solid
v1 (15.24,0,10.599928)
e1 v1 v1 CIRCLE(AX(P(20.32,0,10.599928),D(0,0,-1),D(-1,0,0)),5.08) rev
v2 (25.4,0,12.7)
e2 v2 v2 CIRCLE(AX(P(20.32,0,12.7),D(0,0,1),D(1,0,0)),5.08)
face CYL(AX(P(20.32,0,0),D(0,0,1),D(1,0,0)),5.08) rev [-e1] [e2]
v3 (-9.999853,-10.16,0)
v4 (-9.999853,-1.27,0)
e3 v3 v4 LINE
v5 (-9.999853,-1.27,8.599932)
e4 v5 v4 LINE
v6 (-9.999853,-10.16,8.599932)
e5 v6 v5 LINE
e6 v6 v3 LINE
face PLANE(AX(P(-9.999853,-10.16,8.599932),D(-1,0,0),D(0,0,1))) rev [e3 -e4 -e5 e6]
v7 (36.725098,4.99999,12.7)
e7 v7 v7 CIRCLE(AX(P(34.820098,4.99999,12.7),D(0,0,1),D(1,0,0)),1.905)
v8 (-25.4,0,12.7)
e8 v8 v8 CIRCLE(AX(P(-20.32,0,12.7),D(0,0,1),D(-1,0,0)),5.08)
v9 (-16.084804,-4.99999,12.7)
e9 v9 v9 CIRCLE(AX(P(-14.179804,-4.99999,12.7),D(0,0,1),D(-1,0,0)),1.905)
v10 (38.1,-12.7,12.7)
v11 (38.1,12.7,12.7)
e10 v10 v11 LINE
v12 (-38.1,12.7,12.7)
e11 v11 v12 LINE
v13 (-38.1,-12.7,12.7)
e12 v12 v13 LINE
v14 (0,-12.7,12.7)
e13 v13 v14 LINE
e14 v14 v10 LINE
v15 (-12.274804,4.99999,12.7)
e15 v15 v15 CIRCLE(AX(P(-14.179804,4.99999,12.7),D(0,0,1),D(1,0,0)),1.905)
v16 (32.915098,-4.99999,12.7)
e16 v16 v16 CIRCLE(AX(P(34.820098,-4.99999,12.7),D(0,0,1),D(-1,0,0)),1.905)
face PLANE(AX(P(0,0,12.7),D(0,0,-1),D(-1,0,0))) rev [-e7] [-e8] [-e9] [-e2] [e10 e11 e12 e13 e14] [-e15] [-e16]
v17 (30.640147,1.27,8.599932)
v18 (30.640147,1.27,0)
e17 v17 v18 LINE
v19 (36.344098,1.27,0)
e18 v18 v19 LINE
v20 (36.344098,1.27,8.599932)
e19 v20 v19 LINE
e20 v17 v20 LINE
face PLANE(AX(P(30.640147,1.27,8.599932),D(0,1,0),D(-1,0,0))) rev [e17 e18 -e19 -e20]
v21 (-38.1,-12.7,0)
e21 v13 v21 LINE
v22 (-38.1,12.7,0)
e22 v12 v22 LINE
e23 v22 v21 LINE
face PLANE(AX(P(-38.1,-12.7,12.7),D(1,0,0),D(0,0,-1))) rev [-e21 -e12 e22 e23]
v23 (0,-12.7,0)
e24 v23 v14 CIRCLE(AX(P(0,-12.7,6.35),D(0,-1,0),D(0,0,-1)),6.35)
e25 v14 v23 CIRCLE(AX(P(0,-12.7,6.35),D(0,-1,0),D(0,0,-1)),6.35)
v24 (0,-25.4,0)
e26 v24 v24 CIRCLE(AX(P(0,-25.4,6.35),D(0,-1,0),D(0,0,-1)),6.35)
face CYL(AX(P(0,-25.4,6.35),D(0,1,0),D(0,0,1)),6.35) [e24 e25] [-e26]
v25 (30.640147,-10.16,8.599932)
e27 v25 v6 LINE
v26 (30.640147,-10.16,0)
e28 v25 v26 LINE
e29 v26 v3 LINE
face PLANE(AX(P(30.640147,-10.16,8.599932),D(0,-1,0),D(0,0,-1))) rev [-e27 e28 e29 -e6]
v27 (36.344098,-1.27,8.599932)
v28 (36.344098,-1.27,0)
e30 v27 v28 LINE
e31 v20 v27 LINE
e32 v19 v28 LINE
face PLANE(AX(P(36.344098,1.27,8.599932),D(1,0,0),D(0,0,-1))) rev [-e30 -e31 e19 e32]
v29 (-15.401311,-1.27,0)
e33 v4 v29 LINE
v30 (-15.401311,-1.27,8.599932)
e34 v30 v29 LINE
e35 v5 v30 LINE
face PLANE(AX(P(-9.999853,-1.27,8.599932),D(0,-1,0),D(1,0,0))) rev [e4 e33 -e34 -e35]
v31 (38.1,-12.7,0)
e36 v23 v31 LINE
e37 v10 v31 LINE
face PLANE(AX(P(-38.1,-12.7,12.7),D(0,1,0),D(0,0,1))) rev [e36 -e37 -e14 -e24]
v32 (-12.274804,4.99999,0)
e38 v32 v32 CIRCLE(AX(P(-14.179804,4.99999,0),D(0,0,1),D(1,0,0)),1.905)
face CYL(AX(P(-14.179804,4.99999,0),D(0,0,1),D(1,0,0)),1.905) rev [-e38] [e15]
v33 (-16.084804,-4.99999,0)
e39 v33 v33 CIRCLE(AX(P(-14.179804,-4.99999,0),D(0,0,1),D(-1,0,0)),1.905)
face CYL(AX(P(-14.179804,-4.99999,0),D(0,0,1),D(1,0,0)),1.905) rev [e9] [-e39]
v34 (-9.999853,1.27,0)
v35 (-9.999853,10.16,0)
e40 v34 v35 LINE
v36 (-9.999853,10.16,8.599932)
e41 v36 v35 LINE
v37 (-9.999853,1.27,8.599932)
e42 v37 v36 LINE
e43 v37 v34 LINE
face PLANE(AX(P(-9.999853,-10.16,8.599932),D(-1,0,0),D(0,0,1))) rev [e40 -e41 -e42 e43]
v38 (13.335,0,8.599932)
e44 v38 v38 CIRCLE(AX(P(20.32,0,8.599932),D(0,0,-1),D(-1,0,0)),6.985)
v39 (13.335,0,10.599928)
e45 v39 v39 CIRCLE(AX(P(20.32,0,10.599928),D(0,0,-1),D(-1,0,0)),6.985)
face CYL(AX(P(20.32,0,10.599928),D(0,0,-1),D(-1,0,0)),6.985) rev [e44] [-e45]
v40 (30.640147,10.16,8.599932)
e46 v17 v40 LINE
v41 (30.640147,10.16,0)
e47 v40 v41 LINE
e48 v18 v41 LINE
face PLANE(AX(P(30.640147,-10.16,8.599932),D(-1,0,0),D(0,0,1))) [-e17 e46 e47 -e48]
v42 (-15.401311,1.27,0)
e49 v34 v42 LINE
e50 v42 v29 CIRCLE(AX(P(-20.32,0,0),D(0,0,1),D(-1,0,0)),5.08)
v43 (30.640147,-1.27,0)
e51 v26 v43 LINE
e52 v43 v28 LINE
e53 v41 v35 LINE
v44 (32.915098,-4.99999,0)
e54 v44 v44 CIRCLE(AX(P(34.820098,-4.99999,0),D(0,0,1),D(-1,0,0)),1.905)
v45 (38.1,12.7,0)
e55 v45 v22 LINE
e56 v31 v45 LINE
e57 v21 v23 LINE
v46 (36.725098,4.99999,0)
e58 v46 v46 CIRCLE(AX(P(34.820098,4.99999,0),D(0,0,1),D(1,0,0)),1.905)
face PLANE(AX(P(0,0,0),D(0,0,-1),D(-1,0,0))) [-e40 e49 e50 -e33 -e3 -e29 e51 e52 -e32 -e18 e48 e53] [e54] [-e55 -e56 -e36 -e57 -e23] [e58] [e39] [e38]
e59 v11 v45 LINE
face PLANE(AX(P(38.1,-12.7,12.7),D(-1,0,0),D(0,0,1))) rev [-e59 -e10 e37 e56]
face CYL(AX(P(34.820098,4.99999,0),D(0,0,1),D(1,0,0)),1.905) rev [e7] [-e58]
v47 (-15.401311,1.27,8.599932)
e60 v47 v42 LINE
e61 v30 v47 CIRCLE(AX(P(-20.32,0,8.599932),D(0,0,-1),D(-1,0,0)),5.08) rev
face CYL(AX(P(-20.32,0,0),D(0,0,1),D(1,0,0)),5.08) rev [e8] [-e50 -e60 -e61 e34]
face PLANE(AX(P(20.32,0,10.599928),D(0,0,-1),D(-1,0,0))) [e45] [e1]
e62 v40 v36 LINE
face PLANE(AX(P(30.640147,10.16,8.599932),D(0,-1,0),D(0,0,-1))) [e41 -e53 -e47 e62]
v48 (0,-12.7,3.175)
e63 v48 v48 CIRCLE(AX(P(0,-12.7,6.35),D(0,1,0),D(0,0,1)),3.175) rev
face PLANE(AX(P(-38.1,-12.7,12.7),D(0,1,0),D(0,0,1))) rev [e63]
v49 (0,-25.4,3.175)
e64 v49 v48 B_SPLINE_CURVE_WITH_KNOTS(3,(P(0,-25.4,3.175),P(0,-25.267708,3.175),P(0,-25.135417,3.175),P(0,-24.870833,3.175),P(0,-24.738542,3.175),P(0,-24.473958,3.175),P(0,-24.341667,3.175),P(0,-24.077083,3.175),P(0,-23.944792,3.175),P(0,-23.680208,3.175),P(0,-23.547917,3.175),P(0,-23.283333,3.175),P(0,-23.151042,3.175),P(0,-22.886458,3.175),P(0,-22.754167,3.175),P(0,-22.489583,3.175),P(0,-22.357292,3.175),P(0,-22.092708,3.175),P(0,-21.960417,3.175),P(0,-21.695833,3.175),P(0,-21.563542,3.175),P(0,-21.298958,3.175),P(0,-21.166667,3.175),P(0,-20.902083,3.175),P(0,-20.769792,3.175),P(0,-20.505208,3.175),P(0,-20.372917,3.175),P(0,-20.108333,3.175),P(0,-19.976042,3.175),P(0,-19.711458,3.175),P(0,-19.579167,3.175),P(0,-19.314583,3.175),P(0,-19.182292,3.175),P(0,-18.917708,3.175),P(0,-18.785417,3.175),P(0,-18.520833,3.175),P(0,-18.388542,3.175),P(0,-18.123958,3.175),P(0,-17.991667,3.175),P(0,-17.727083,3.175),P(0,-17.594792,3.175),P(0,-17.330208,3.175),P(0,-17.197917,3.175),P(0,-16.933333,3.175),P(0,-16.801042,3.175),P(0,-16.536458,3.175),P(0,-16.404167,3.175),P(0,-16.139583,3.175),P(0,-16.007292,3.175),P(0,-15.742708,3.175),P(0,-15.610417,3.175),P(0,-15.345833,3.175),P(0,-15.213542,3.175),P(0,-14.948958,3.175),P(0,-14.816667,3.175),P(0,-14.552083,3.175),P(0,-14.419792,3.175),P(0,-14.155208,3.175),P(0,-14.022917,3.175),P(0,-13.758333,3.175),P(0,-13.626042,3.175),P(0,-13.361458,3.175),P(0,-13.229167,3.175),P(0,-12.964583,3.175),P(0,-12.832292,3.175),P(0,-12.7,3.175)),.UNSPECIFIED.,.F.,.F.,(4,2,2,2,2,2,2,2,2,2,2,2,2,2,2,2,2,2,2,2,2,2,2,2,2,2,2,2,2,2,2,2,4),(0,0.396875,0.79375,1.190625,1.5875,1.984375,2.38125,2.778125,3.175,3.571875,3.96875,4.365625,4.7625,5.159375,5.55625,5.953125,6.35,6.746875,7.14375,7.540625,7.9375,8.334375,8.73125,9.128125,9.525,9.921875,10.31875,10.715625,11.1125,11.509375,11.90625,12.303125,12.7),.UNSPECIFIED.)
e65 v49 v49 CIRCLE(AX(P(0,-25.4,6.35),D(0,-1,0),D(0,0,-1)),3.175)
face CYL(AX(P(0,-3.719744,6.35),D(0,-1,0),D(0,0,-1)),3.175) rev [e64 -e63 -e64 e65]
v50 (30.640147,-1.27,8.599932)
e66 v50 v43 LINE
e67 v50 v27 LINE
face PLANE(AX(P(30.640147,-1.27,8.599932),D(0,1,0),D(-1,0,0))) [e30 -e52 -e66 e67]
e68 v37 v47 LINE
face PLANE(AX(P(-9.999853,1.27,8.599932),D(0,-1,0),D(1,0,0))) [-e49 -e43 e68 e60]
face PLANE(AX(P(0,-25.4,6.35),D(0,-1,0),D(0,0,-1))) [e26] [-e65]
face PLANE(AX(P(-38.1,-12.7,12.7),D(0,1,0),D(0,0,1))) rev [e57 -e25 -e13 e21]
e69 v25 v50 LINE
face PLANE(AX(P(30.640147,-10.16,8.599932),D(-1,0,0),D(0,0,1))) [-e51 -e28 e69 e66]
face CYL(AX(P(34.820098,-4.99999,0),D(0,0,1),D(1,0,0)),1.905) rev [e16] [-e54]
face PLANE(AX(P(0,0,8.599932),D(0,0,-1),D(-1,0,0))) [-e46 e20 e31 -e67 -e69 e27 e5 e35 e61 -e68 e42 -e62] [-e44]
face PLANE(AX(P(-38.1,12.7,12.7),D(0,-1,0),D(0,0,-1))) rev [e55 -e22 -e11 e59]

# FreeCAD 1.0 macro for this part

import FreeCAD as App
import Part
import Sketcher
from FreeCAD import Vector
Q = App.Units.Quantity


def add_polygon(sketch, points):
    """Adds a closed chain of lines whose ends are joined by coincident constraints."""
    first, n = sketch.GeometryCount, len(points)
    for a, b in zip(points, points[1:] + points[:1]):
        sketch.addGeometry(Part.LineSegment(App.Vector(*a, 0), App.Vector(*b, 0)), False)
    for i in range(n):
        sketch.addConstraint(Sketcher.Constraint("Coincident", first + i, 2, first + (i + 1) % n, 1))

doc = App.newDocument("Part")
body = doc.addObject("PartDesign::Body", "Body")

sketch1 = body.newObject("Sketcher::SketchObject", "Sketch")
sketch1.AttachmentSupport = (doc.getObject("XY_Plane"), [""])
sketch1.MapMode = "FlatFace"
add_polygon(sketch1, [(-38, 13), (-38, -13), (38, -13), (38, 13)])
sketch1.addConstraint([
    Sketcher.Constraint("Vertical", 0),
    Sketcher.Constraint("Horizontal", 1),
    Sketcher.Constraint("Vertical", 2),
    Sketcher.Constraint("Horizontal", 3),
    Sketcher.Constraint("Symmetric", 0, 2, 2, 2, -1, 1),
    Sketcher.Constraint("DistanceX", 1, 1, 1, 2, Q("3 in")),
    Sketcher.Constraint("DistanceY", 0, 2, 0, 1, Q("1 in")),
])
pad1 = body.newObject("PartDesign::Pad", "Pad")
pad1.Profile = sketch1
pad1.Length = Q("0.5 in")

sketch2 = body.newObject("Sketcher::SketchObject", "Sketch001")
sketch2.AttachmentSupport = (doc.getObject("XY_Plane"), [""])
sketch2.MapMode = "FlatFace"
sketch2.AttachmentOffset = App.Placement(Vector(0, 0, 0.5 * 25.4), App.Rotation())
sketch2.addGeometry([
    Part.Circle(Vector(20, 0, 0), Vector(0, 0, 1), 5),
    Part.Circle(Vector(-20, 0, 0), Vector(0, 0, 1), 5),
], False)
sketch2.addConstraint([
    Sketcher.Constraint("Equal", 0, 1),
    Sketcher.Constraint("Symmetric", 0, 3, 1, 3, -1, 1),
    Sketcher.Constraint("PointOnObject", 0, 3, -1),
    Sketcher.Constraint("Diameter", 0, Q("0.4 in")),
    Sketcher.Constraint("DistanceX", -1, 1, 0, 3, Q("0.8 in")),
])
pocket1 = body.newObject("PartDesign::Pocket", "Pocket")
pocket1.Profile = sketch2
pocket1.Type = "ThroughAll"

sketch3 = body.newObject("Sketcher::SketchObject", "Sketch002")
sketch3.AttachmentSupport = (doc.getObject("XY_Plane"), [""])
sketch3.MapMode = "FlatFace"
sketch3.AttachmentOffset = App.Placement(Vector(0, 0, 0.5 * 25.4), App.Rotation())
sketch3.addGeometry([
    Part.Circle(Vector(34.8, 5, 0), Vector(0, 0, 1), 1.9),
    Part.Circle(Vector(-14.2, 5, 0), Vector(0, 0, 1), 1.9),
    Part.Circle(Vector(34.8, -5, 0), Vector(0, 0, 1), 1.9),
    Part.Circle(Vector(-14.2, -5, 0), Vector(0, 0, 1), 1.9),
], False)
sketch3.addConstraint([
    Sketcher.Constraint("Equal", 0, 1),
    Sketcher.Constraint("Equal", 1, 2),
    Sketcher.Constraint("Equal", 2, 3),
    Sketcher.Constraint("Symmetric", 0, 3, 2, 3, -1),
    Sketcher.Constraint("Symmetric", 1, 3, 3, 3, -1),
    Sketcher.Constraint("Horizontal", 0, 3, 1, 3),
    Sketcher.Constraint("Diameter", 0, Q("0.15 in")),
    Sketcher.Constraint("DistanceY", 2, 3, 0, 3, Q("0.3937 in")),
    Sketcher.Constraint("DistanceX", -1, 1, 0, 3, 34.820098),
    Sketcher.Constraint("DistanceX", 1, 3, -1, 1, 14.179804),
])
pocket2 = body.newObject("PartDesign::Pocket", "Pocket001")
pocket2.Profile = sketch3
pocket2.Type = "ThroughAll"

sketch4 = body.newObject("Sketcher::SketchObject", "Sketch003")
sketch4.AttachmentSupport = (doc.getObject("XY_Plane"), [""])
sketch4.MapMode = "FlatFace"
add_polygon(sketch4, [(30.6, -1.3), (30.6, -10.2), (-10, -10.2), (-10, -1.3), (-15.7, -1.3), (-15.7, 1.3), (-10, 1.3), (-10, 10.2), (30.6, 10.2), (30.6, 1.3), (36.3, 1.3), (36.3, -1.3)])
sketch4.addConstraint([
    Sketcher.Constraint("Vertical", 0),
    Sketcher.Constraint("Horizontal", 1),
    Sketcher.Constraint("Vertical", 2),
    Sketcher.Constraint("Horizontal", 3),
    Sketcher.Constraint("Vertical", 4),
    Sketcher.Constraint("Horizontal", 5),
    Sketcher.Constraint("Vertical", 6),
    Sketcher.Constraint("Horizontal", 7),
    Sketcher.Constraint("Vertical", 8),
    Sketcher.Constraint("Horizontal", 9),
    Sketcher.Constraint("Vertical", 10),
    Sketcher.Constraint("Horizontal", 11),
    Sketcher.Constraint("Symmetric", 2, 2, 5, 2, -1),
    Sketcher.Constraint("Symmetric", 0, 2, 7, 2, -1),
    Sketcher.Constraint("Horizontal", 5, 2, 8, 2),
    Sketcher.Constraint("Horizontal", 3, 2, 10, 2),
    Sketcher.Constraint("Equal", 5, 9),
    Sketcher.Constraint("DistanceX", 1, 2, 1, 1, Q("1.6 in")),
    Sketcher.Constraint("DistanceY", 4, 1, 4, 2, Q("0.1 in")),
    Sketcher.Constraint("DistanceY", 0, 2, 0, 1, Q("0.35 in")),
    Sketcher.Constraint("DistanceX", 3, 2, 3, 1, 5.703951),
    Sketcher.Constraint("DistanceX", -1, 1, 9, 2, 36.344098),
])
pocket3 = body.newObject("PartDesign::Pocket", "Pocket002")
pocket3.Profile = sketch4
pocket3.Length = 8.599932
pocket3.Reversed = True

sketch5 = body.newObject("Sketcher::SketchObject", "Sketch004")
sketch5.AttachmentSupport = (doc.getObject("XY_Plane"), [""])
sketch5.MapMode = "FlatFace"
sketch5.AttachmentOffset = App.Placement(Vector(0, 0, 8.599932), App.Rotation())
sketch5.addGeometry(Part.Circle(Vector(20, 0, 0), Vector(0, 0, 1), 7), False)
sketch5.addConstraint([
    Sketcher.Constraint("PointOnObject", 0, 3, -1),
    Sketcher.Constraint("Diameter", 0, Q("0.55 in")),
    Sketcher.Constraint("DistanceX", -1, 1, 0, 3, Q("0.8 in")),
])
pocket4 = body.newObject("PartDesign::Pocket", "Pocket003")
pocket4.Profile = sketch5
pocket4.Length = 1.999996
pocket4.Reversed = True

sketch6 = body.newObject("Sketcher::SketchObject", "Sketch005")
sketch6.AttachmentSupport = (doc.getObject("XZ_Plane"), [""])
sketch6.MapMode = "FlatFace"
sketch6.AttachmentOffset = App.Placement(Vector(0, 0, 0.5 * 25.4), App.Rotation())
sketch6.addGeometry(Part.Circle(Vector(0, 6, 0), Vector(0, 0, 1), 6), False)
sketch6.addConstraint([
    Sketcher.Constraint("PointOnObject", 0, 3, -2),
    Sketcher.Constraint("Diameter", 0, Q("0.5 in")),
    Sketcher.Constraint("DistanceY", -1, 1, 0, 3, Q("0.25 in")),
])
pad2 = body.newObject("PartDesign::Pad", "Pad001")
pad2.Profile = sketch6
pad2.Length = Q("0.5 in")

sketch7 = body.newObject("Sketcher::SketchObject", "Sketch006")
sketch7.AttachmentSupport = (doc.getObject("XZ_Plane"), [""])
sketch7.MapMode = "FlatFace"
sketch7.AttachmentOffset = App.Placement(Vector(0, 0, 1 * 25.4), App.Rotation())
sketch7.addGeometry(Part.Circle(Vector(0, 6.3, 0), Vector(0, 0, 1), 3.2), False)
sketch7.addConstraint([
    Sketcher.Constraint("PointOnObject", 0, 3, -2),
    Sketcher.Constraint("Diameter", 0, Q("0.25 in")),
    Sketcher.Constraint("DistanceY", -1, 1, 0, 3, Q("0.25 in")),
])
pocket5 = body.newObject("PartDesign::Pocket", "Pocket004")
pocket5.Profile = sketch7
pocket5.Length = Q("0.5 in")

doc.recompute()
